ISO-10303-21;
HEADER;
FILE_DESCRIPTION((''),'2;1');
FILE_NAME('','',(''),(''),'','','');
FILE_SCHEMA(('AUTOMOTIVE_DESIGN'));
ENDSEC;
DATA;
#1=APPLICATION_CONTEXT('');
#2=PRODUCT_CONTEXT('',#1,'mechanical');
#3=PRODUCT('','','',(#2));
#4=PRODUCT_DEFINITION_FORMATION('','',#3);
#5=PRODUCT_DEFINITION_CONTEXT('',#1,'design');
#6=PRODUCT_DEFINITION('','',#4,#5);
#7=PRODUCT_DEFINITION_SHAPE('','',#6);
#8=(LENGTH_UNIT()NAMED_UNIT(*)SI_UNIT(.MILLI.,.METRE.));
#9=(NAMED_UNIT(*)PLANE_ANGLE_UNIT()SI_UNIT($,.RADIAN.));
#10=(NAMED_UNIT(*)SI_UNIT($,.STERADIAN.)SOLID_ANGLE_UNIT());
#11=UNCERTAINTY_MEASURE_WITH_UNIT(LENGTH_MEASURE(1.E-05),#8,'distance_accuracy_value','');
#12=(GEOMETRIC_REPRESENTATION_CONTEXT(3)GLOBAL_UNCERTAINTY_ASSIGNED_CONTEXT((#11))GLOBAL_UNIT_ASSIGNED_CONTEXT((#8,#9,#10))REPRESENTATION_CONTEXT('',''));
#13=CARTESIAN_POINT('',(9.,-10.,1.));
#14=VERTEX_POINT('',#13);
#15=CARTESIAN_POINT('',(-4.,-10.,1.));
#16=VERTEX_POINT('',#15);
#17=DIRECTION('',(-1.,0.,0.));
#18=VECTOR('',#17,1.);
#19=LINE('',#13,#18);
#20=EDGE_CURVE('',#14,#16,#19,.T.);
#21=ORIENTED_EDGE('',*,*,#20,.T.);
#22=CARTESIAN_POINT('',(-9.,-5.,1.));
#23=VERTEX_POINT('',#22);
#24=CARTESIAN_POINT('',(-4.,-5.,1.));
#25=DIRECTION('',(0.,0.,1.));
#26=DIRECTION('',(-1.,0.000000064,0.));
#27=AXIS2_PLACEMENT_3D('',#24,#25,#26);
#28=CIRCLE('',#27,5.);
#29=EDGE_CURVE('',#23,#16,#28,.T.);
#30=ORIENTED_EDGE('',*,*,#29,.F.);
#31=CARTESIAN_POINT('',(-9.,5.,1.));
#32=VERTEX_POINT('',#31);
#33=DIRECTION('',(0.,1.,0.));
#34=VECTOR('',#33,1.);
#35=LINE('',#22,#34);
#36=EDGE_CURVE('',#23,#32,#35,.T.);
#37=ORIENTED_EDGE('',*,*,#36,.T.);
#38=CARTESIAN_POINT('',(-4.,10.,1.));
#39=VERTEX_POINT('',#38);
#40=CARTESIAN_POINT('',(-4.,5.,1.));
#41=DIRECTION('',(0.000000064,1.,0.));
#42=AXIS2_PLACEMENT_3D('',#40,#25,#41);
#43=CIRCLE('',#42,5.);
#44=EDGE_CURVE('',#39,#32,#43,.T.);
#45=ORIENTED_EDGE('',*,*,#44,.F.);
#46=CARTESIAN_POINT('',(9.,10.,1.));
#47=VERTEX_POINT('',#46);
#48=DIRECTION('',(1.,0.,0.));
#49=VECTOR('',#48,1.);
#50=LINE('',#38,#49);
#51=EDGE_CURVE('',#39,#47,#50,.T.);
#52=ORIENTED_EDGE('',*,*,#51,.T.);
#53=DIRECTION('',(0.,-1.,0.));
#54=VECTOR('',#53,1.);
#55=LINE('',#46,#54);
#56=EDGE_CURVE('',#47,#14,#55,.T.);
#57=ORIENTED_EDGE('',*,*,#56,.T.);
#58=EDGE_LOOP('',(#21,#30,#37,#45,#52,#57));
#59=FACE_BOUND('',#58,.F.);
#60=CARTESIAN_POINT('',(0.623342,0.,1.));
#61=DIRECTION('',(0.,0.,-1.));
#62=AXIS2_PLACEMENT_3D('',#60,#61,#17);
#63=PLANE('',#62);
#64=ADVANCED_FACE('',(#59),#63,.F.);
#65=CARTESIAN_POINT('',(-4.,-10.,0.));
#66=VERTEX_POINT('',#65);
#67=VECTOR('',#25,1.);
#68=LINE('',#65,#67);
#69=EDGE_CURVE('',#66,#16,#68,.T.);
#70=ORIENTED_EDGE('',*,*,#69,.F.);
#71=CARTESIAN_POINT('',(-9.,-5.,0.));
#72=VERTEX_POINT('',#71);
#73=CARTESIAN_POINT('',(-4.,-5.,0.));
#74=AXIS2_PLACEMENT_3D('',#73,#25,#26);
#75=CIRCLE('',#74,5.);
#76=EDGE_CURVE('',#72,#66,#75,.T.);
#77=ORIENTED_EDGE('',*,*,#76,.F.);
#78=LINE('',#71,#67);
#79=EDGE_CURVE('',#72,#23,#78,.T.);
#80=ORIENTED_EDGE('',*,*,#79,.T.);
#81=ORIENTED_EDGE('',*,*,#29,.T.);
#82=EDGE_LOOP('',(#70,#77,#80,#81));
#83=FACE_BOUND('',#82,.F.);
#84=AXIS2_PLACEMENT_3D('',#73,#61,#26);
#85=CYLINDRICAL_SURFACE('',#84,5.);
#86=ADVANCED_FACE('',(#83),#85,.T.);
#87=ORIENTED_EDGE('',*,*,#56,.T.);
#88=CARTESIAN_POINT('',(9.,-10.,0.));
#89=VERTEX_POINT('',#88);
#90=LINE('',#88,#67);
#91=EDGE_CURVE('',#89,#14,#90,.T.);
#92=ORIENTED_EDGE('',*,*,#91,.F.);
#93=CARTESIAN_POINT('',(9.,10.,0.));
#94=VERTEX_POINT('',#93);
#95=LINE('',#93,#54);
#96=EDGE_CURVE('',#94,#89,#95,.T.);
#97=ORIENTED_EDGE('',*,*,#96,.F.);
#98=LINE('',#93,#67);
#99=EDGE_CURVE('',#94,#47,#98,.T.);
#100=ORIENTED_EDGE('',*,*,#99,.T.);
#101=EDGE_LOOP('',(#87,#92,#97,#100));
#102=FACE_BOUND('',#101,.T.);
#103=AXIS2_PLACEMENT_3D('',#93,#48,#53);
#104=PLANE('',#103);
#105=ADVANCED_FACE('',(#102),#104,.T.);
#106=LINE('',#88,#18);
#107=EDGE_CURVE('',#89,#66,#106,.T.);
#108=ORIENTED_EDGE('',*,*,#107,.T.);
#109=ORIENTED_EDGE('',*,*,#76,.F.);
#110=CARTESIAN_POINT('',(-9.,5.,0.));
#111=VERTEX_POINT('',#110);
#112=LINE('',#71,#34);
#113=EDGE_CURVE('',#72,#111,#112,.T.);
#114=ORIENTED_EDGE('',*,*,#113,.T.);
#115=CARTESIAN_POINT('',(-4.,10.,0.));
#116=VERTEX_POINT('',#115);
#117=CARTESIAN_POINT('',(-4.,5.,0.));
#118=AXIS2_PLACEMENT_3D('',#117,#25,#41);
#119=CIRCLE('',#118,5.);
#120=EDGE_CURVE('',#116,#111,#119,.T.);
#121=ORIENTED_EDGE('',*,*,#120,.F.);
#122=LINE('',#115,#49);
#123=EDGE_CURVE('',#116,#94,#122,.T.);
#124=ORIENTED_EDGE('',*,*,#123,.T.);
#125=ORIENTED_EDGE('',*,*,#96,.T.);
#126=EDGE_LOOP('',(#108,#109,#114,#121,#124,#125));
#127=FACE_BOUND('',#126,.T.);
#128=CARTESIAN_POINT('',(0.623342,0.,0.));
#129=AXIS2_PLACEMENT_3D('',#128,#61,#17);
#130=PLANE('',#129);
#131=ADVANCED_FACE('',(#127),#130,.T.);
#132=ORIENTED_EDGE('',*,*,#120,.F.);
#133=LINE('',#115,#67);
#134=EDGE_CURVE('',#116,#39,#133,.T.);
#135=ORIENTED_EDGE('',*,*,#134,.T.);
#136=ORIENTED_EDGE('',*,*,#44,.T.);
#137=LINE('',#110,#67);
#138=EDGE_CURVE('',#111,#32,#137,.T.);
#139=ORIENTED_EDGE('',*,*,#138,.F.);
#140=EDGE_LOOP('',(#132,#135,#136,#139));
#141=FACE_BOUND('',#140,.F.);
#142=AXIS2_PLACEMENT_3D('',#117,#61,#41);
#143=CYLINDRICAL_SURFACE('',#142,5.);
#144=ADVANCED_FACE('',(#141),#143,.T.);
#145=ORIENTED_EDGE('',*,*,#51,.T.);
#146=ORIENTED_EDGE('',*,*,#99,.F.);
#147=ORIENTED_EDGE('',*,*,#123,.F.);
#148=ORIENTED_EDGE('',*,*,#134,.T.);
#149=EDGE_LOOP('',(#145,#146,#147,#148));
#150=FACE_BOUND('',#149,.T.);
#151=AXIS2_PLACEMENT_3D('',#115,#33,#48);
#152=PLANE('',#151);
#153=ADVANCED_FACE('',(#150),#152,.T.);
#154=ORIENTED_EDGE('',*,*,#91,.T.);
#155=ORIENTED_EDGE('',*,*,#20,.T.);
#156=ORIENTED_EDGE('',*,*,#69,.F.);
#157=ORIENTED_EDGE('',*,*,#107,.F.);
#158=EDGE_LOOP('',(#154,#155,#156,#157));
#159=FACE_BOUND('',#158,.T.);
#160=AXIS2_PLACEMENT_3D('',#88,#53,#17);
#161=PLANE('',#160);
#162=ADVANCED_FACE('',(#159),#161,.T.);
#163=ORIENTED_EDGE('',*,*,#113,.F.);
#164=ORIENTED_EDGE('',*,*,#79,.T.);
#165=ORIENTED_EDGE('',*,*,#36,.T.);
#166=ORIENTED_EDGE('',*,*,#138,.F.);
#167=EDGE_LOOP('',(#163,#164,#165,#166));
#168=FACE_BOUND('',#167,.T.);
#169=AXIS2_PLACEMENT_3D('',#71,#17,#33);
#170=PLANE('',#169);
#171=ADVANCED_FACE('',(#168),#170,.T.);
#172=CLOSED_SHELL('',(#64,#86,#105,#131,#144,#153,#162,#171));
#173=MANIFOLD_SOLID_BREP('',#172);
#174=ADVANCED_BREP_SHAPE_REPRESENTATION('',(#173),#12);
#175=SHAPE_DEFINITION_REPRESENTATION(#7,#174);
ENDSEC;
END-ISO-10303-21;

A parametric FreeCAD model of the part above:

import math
import FreeCAD as App
import Part
import Sketcher

V = App.Vector
Q = App.Units.Quantity

doc = App.newDocument("Part")
body = doc.addObject("PartDesign::Body", "Body")

# Sketch on XY plane
sketch1 = body.newObject("Sketcher::SketchObject", "Sketch")
sketch1.AttachmentSupport = (doc.getObject("XY_Plane"), [""])
sketch1.MapMode = "FlatFace"
sketch1.addGeometry(Part.LineSegment(V(9, 10, 0), V(-4, 10, 0)), False)
sketch1.addGeometry(Part.ArcOfCircle(Part.Circle(V(-4, 5, 0), V(0, 0, 1), 5), math.radians(89.999996), math.radians(180.000004)), False)
sketch1.addGeometry(Part.LineSegment(V(-9, 5, 0), V(-9, -5, 0)), False)
sketch1.addGeometry(Part.ArcOfCircle(Part.Circle(V(-4, -5, 0), V(0, 0, 1), 5), math.radians(179.999996), math.radians(270.000004)), False)
sketch1.addGeometry(Part.LineSegment(V(-4, -10, 0), V(9, -10, 0)), False)
sketch1.addGeometry(Part.LineSegment(V(9, -10, 0), V(9, 10, 0)), False)
sketch1.addConstraint(Sketcher.Constraint("Tangent", 0, 2, 1, 1))
sketch1.addConstraint(Sketcher.Constraint("Tangent", 1, 2, 2, 1))
sketch1.addConstraint(Sketcher.Constraint("Tangent", 2, 2, 3, 1))
sketch1.addConstraint(Sketcher.Constraint("Tangent", 3, 2, 4, 1))
sketch1.addConstraint(Sketcher.Constraint("Coincident", 4, 2, 5, 1))
sketch1.addConstraint(Sketcher.Constraint("Coincident", 5, 2, 0, 1))
sketch1.addConstraint(Sketcher.Constraint("Horizontal", 0))
sketch1.addConstraint(Sketcher.Constraint("Vertical", 2))
sketch1.addConstraint(Sketcher.Constraint("Horizontal", 4))
sketch1.addConstraint(Sketcher.Constraint("Vertical", 5))
sketch1.addConstraint(Sketcher.Constraint("Equal", 1, 3))
sketch1.addConstraint(Sketcher.Constraint("Radius", 1, Q("5 mm")))
sketch1.addConstraint(Sketcher.Constraint("DistanceX", 0, 2, 0, 1, Q("13 mm")))
sketch1.addConstraint(Sketcher.Constraint("DistanceY", 2, 2, 2, 1, Q("10 mm")))
sketch1.addConstraint(Sketcher.Constraint("DistanceX", 1, 3, -1, 1, Q("4 mm")))
sketch1.addConstraint(Sketcher.Constraint("DistanceY", -1, 1, 1, 3, Q("5 mm")))
pad1 = body.newObject("PartDesign::Pad", "Pad")
pad1.Profile = sketch1
pad1.Length = 1

doc.recompute()
